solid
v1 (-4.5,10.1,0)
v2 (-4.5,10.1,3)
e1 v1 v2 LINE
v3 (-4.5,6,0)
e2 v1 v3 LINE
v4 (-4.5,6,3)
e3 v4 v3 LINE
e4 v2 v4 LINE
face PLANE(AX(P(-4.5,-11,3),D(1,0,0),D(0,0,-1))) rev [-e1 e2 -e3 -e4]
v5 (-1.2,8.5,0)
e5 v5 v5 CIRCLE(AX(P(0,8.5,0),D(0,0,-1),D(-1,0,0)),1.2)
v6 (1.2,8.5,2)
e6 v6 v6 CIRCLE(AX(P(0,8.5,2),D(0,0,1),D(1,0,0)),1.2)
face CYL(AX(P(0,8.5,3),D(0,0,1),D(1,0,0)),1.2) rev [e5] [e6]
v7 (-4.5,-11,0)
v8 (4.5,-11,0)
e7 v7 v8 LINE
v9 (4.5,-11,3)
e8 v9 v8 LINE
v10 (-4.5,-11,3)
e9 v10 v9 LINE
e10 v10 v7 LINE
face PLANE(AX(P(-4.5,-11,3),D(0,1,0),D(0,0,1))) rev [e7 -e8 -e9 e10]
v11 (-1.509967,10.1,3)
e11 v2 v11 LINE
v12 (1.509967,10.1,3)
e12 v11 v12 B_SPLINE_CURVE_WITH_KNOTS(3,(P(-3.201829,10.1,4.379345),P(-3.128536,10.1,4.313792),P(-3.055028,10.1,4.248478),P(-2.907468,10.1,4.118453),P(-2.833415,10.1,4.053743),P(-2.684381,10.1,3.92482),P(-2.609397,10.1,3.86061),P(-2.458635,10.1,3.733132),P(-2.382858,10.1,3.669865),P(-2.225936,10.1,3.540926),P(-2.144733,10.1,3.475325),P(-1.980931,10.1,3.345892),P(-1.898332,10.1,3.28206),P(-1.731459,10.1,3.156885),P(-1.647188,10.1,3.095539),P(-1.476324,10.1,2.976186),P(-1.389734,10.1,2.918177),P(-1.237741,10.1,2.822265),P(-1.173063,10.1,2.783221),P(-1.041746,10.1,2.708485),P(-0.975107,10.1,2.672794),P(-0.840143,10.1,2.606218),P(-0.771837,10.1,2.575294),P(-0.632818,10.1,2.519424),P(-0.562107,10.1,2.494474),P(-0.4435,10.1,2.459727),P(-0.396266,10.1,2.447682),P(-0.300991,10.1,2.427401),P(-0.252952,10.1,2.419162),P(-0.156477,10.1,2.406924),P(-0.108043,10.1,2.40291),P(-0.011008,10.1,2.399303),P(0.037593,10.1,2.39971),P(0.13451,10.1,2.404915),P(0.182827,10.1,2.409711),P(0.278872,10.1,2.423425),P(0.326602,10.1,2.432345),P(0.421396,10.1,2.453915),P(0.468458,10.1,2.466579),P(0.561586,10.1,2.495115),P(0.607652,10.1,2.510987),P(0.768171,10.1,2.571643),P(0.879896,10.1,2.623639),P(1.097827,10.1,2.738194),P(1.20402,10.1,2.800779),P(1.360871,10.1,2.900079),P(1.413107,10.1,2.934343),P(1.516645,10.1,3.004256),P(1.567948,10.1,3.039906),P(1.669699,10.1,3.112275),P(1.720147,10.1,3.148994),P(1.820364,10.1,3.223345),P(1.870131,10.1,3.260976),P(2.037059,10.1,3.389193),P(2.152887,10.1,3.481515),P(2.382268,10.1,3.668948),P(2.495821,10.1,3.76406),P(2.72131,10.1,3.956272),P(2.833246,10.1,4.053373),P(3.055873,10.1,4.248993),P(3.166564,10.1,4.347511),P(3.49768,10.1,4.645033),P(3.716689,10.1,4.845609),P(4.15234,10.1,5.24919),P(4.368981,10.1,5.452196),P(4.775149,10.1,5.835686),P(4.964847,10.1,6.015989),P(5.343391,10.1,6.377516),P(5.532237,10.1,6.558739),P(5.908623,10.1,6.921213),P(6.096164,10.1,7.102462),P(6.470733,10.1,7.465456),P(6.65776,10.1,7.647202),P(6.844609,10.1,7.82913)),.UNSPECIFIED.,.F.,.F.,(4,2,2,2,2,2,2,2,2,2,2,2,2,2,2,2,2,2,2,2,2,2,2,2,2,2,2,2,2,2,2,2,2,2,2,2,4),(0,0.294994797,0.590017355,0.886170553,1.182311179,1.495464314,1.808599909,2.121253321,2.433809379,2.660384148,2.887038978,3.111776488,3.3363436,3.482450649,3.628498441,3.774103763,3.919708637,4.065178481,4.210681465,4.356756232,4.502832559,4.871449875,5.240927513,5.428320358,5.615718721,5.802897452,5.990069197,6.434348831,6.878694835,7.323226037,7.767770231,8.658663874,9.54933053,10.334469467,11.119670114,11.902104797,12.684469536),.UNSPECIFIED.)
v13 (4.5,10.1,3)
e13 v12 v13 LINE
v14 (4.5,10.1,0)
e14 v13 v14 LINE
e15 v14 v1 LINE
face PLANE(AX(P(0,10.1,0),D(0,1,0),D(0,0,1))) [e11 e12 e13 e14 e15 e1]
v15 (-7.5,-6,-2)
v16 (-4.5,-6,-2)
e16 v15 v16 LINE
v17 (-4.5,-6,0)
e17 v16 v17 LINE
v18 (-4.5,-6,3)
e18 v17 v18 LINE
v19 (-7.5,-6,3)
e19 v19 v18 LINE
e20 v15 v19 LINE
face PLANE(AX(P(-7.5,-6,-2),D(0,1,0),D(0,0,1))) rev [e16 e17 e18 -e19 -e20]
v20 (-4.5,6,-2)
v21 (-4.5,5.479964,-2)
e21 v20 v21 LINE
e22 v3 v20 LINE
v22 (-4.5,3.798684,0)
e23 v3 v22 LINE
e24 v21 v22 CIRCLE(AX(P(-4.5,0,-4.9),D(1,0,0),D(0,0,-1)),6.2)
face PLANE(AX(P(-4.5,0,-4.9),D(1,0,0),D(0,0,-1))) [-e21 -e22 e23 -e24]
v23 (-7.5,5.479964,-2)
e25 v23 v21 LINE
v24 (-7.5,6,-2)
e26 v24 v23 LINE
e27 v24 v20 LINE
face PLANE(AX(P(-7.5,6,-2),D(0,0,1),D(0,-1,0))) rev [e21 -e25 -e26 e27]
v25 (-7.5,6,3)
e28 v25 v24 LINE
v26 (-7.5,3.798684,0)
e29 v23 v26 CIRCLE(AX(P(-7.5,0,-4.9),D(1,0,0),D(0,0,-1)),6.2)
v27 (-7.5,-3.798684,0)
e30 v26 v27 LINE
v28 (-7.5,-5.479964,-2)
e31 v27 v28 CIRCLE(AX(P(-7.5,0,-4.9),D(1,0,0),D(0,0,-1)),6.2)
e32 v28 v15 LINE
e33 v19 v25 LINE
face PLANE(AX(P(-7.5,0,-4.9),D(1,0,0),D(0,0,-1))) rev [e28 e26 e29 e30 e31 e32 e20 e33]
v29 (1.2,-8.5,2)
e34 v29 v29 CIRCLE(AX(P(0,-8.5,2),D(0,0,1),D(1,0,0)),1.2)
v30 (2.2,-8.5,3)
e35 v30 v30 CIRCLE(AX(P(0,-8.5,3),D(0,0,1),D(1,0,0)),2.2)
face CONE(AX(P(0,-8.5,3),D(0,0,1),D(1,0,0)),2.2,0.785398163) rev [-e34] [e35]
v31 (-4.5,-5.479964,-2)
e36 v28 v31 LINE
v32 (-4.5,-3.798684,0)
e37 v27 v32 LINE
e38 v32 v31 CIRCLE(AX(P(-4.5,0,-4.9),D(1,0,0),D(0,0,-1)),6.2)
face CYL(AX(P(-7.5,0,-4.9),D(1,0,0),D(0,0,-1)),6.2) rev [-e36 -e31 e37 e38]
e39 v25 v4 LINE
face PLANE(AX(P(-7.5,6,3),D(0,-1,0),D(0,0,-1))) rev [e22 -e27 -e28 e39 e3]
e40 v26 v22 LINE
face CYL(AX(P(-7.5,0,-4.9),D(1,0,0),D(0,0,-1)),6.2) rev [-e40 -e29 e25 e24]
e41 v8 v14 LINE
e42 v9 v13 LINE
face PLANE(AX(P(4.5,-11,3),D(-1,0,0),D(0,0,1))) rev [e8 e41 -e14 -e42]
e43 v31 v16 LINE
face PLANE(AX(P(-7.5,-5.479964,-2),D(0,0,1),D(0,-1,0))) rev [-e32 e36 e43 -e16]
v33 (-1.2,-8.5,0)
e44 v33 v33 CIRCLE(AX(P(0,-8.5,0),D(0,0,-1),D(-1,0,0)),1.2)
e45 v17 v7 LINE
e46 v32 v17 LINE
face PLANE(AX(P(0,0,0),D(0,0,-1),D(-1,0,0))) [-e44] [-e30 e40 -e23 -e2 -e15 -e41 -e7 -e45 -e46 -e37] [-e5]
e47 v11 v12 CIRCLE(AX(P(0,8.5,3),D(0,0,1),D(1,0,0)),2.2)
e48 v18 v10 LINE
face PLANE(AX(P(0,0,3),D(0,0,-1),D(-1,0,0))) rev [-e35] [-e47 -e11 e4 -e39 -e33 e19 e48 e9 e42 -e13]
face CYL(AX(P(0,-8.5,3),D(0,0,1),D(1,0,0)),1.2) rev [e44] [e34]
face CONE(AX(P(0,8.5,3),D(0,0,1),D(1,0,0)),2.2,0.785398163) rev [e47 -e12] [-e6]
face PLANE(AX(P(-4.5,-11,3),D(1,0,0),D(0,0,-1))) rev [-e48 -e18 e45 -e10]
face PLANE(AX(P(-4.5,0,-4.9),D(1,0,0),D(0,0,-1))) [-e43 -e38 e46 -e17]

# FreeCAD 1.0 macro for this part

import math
import FreeCAD as App
import Part
import Sketcher
from FreeCAD import Vector
Q = App.Units.Quantity


def add_polygon(sketch, points):
    """Adds a closed chain of lines whose ends are joined by coincident constraints."""
    first, n = sketch.GeometryCount, len(points)
    for a, b in zip(points, points[1:] + points[:1]):
        sketch.addGeometry(Part.LineSegment(App.Vector(*a, 0), App.Vector(*b, 0)), False)
    for i in range(n):
        sketch.addConstraint(Sketcher.Constraint("Coincident", first + i, 2, first + (i + 1) % n, 1))

doc = App.newDocument("Part")
body = doc.addObject("PartDesign::Body", "Body")

sketch1 = body.newObject("Sketcher::SketchObject", "Sketch")
sketch1.AttachmentSupport = (doc.getObject("XY_Plane"), [""])
sketch1.MapMode = "FlatFace"
add_polygon(sketch1, [(-4, 11), (-4, -11), (4, -11), (4, 11)])
sketch1.addConstraint([
    Sketcher.Constraint("Vertical", 0),
    Sketcher.Constraint("Horizontal", 1),
    Sketcher.Constraint("Vertical", 2),
    Sketcher.Constraint("Horizontal", 3),
    Sketcher.Constraint("Symmetric", 0, 2, 2, 2, -1, 1),
    Sketcher.Constraint("DistanceX", 1, 1, 1, 2, Q("9 mm")),
    Sketcher.Constraint("DistanceY", 0, 2, 0, 1, Q("22 mm")),
])
pad1 = body.newObject("PartDesign::Pad", "Pad")
pad1.Profile = sketch1
pad1.Length = 3

sketch2 = body.newObject("Sketcher::SketchObject", "Sketch001")
sketch2.AttachmentSupport = (doc.getObject("XY_Plane"), [""])
sketch2.MapMode = "FlatFace"
sketch2.AttachmentOffset = App.Placement(Vector(0, 0, 3), App.Rotation())
sketch2.addGeometry([
    Part.Circle(Vector(0, 8.5, 0), Vector(0, 0, 1), 1.2),
    Part.Circle(Vector(0, -8.5, 0), Vector(0, 0, 1), 1.2),
], False)
sketch2.addConstraint([
    Sketcher.Constraint("Equal", 0, 1),
    Sketcher.Constraint("Symmetric", 0, 3, 1, 3, -1, 1),
    Sketcher.Constraint("PointOnObject", 0, 3, -2),
    Sketcher.Constraint("Diameter", 0, Q("2.4 mm")),
    Sketcher.Constraint("DistanceY", 1, 3, 0, 3, Q("17 mm")),
])
doc.recompute()
hole = body.newObject("PartDesign::Hole", "Hole")
hole.Profile = sketch2
hole.ThreadType = "None"
hole.Diameter = 2.4
hole.DepthType = "Dimension"
hole.Depth = 10
hole.DrillPoint = "Angled"
hole.DrillPointAngle = 118
hole.HoleCutType = "Countersink"
hole.HoleCutDiameter = 4.4
hole.HoleCutCountersinkAngle = 90

sketch3 = body.newObject("Sketcher::SketchObject", "Sketch002")
sketch3.AttachmentSupport = (doc.getObject("YZ_Plane"), [""])
sketch3.MapMode = "FlatFace"
sketch3.AttachmentOffset = App.Placement(Vector(0, 0, -4.5), App.Rotation())
sketch3.addGeometry([
    Part.LineSegment(Vector(6, 3, 0), Vector(6, -2, 0)),
    Part.LineSegment(Vector(6, -2, 0), Vector(5.5, -2, 0)),
    Part.ArcOfCircle(Part.Circle(Vector(0, -4.9, 0), Vector(0, 0, 1), 6.2), math.radians(28), math.radians(52)),
    Part.LineSegment(Vector(3.8, 0, 0), Vector(-3.8, 0, 0)),
    Part.ArcOfCircle(Part.Circle(Vector(0, -4.9, 0), Vector(0, 0, 1), 6.2), math.radians(128), math.radians(152)),
    Part.LineSegment(Vector(-5.5, -2, 0), Vector(-6, -2, 0)),
    Part.LineSegment(Vector(-6, -2, 0), Vector(-6, 3, 0)),
    Part.LineSegment(Vector(-6, 3, 0), Vector(6, 3, 0)),
], False)
sketch3.addConstraint([
    Sketcher.Constraint("Coincident", 0, 2, 1, 1),
    Sketcher.Constraint("Coincident", 1, 2, 2, 1),
    Sketcher.Constraint("Coincident", 2, 2, 3, 1),
    Sketcher.Constraint("Coincident", 3, 2, 4, 1),
    Sketcher.Constraint("Coincident", 4, 2, 5, 1),
    Sketcher.Constraint("Coincident", 5, 2, 6, 1),
    Sketcher.Constraint("Coincident", 6, 2, 7, 1),
    Sketcher.Constraint("Coincident", 7, 2, 0, 1),
    Sketcher.Constraint("Vertical", 0),
    Sketcher.Constraint("Horizontal", 1),
    Sketcher.Constraint("Horizontal", 3),
    Sketcher.Constraint("Horizontal", 5),
    Sketcher.Constraint("Vertical", 6),
    Sketcher.Constraint("Horizontal", 7),
    Sketcher.Constraint("Coincident", 4, 3, 2, 3),
    Sketcher.Constraint("Equal", 2, 4),
    Sketcher.Constraint("Symmetric", 2, 2, 3, 2, -1, 1),
    Sketcher.Constraint("Symmetric", 0, 2, 5, 2, -2),
    Sketcher.Constraint("Radius", 2, Q("6.2 mm")),
    Sketcher.Constraint("DistanceX", 7, 1, 7, 2, Q("12 mm")),
    Sketcher.Constraint("DistanceY", 0, 2, 0, 1, Q("5 mm")),
    Sketcher.Constraint("DistanceY", 0, 2, -1, 1, Q("2 mm")),
    Sketcher.Constraint("DistanceY", 2, 3, -1, 1, Q("4.9 mm")),
])
pad2 = body.newObject("PartDesign::Pad", "Pad001")
pad2.Profile = sketch3
pad2.Length = 3
pad2.Reversed = True

sketch4 = body.newObject("Sketcher::SketchObject", "Sketch003")
sketch4.AttachmentSupport = (doc.getObject("XZ_Plane"), [""])
sketch4.MapMode = "FlatFace"
sketch4.AttachmentOffset = App.Placement(Vector(0, 0, -11), App.Rotation())
add_polygon(sketch4, [(-4.5, 0), (-4.5, 3), (4.5, 3), (4.5, 0)])
sketch4.addConstraint([
    Sketcher.Constraint("Vertical", 0),
    Sketcher.Constraint("Horizontal", 1),
    Sketcher.Constraint("Vertical", 2),
    Sketcher.Constraint("Horizontal", 3),
    Sketcher.Constraint("Symmetric", 2, 2, 3, 2, -1, 1),
    Sketcher.Constraint("DistanceX", 1, 1, 1, 2, Q("9 mm")),
    Sketcher.Constraint("DistanceY", 0, 1, 0, 2, Q("3 mm")),
])
pocket1 = body.newObject("PartDesign::Pocket", "Pocket")
pocket1.Profile = sketch4
pocket1.Length = 0.9
pocket1.Reversed = True

doc.recompute()
